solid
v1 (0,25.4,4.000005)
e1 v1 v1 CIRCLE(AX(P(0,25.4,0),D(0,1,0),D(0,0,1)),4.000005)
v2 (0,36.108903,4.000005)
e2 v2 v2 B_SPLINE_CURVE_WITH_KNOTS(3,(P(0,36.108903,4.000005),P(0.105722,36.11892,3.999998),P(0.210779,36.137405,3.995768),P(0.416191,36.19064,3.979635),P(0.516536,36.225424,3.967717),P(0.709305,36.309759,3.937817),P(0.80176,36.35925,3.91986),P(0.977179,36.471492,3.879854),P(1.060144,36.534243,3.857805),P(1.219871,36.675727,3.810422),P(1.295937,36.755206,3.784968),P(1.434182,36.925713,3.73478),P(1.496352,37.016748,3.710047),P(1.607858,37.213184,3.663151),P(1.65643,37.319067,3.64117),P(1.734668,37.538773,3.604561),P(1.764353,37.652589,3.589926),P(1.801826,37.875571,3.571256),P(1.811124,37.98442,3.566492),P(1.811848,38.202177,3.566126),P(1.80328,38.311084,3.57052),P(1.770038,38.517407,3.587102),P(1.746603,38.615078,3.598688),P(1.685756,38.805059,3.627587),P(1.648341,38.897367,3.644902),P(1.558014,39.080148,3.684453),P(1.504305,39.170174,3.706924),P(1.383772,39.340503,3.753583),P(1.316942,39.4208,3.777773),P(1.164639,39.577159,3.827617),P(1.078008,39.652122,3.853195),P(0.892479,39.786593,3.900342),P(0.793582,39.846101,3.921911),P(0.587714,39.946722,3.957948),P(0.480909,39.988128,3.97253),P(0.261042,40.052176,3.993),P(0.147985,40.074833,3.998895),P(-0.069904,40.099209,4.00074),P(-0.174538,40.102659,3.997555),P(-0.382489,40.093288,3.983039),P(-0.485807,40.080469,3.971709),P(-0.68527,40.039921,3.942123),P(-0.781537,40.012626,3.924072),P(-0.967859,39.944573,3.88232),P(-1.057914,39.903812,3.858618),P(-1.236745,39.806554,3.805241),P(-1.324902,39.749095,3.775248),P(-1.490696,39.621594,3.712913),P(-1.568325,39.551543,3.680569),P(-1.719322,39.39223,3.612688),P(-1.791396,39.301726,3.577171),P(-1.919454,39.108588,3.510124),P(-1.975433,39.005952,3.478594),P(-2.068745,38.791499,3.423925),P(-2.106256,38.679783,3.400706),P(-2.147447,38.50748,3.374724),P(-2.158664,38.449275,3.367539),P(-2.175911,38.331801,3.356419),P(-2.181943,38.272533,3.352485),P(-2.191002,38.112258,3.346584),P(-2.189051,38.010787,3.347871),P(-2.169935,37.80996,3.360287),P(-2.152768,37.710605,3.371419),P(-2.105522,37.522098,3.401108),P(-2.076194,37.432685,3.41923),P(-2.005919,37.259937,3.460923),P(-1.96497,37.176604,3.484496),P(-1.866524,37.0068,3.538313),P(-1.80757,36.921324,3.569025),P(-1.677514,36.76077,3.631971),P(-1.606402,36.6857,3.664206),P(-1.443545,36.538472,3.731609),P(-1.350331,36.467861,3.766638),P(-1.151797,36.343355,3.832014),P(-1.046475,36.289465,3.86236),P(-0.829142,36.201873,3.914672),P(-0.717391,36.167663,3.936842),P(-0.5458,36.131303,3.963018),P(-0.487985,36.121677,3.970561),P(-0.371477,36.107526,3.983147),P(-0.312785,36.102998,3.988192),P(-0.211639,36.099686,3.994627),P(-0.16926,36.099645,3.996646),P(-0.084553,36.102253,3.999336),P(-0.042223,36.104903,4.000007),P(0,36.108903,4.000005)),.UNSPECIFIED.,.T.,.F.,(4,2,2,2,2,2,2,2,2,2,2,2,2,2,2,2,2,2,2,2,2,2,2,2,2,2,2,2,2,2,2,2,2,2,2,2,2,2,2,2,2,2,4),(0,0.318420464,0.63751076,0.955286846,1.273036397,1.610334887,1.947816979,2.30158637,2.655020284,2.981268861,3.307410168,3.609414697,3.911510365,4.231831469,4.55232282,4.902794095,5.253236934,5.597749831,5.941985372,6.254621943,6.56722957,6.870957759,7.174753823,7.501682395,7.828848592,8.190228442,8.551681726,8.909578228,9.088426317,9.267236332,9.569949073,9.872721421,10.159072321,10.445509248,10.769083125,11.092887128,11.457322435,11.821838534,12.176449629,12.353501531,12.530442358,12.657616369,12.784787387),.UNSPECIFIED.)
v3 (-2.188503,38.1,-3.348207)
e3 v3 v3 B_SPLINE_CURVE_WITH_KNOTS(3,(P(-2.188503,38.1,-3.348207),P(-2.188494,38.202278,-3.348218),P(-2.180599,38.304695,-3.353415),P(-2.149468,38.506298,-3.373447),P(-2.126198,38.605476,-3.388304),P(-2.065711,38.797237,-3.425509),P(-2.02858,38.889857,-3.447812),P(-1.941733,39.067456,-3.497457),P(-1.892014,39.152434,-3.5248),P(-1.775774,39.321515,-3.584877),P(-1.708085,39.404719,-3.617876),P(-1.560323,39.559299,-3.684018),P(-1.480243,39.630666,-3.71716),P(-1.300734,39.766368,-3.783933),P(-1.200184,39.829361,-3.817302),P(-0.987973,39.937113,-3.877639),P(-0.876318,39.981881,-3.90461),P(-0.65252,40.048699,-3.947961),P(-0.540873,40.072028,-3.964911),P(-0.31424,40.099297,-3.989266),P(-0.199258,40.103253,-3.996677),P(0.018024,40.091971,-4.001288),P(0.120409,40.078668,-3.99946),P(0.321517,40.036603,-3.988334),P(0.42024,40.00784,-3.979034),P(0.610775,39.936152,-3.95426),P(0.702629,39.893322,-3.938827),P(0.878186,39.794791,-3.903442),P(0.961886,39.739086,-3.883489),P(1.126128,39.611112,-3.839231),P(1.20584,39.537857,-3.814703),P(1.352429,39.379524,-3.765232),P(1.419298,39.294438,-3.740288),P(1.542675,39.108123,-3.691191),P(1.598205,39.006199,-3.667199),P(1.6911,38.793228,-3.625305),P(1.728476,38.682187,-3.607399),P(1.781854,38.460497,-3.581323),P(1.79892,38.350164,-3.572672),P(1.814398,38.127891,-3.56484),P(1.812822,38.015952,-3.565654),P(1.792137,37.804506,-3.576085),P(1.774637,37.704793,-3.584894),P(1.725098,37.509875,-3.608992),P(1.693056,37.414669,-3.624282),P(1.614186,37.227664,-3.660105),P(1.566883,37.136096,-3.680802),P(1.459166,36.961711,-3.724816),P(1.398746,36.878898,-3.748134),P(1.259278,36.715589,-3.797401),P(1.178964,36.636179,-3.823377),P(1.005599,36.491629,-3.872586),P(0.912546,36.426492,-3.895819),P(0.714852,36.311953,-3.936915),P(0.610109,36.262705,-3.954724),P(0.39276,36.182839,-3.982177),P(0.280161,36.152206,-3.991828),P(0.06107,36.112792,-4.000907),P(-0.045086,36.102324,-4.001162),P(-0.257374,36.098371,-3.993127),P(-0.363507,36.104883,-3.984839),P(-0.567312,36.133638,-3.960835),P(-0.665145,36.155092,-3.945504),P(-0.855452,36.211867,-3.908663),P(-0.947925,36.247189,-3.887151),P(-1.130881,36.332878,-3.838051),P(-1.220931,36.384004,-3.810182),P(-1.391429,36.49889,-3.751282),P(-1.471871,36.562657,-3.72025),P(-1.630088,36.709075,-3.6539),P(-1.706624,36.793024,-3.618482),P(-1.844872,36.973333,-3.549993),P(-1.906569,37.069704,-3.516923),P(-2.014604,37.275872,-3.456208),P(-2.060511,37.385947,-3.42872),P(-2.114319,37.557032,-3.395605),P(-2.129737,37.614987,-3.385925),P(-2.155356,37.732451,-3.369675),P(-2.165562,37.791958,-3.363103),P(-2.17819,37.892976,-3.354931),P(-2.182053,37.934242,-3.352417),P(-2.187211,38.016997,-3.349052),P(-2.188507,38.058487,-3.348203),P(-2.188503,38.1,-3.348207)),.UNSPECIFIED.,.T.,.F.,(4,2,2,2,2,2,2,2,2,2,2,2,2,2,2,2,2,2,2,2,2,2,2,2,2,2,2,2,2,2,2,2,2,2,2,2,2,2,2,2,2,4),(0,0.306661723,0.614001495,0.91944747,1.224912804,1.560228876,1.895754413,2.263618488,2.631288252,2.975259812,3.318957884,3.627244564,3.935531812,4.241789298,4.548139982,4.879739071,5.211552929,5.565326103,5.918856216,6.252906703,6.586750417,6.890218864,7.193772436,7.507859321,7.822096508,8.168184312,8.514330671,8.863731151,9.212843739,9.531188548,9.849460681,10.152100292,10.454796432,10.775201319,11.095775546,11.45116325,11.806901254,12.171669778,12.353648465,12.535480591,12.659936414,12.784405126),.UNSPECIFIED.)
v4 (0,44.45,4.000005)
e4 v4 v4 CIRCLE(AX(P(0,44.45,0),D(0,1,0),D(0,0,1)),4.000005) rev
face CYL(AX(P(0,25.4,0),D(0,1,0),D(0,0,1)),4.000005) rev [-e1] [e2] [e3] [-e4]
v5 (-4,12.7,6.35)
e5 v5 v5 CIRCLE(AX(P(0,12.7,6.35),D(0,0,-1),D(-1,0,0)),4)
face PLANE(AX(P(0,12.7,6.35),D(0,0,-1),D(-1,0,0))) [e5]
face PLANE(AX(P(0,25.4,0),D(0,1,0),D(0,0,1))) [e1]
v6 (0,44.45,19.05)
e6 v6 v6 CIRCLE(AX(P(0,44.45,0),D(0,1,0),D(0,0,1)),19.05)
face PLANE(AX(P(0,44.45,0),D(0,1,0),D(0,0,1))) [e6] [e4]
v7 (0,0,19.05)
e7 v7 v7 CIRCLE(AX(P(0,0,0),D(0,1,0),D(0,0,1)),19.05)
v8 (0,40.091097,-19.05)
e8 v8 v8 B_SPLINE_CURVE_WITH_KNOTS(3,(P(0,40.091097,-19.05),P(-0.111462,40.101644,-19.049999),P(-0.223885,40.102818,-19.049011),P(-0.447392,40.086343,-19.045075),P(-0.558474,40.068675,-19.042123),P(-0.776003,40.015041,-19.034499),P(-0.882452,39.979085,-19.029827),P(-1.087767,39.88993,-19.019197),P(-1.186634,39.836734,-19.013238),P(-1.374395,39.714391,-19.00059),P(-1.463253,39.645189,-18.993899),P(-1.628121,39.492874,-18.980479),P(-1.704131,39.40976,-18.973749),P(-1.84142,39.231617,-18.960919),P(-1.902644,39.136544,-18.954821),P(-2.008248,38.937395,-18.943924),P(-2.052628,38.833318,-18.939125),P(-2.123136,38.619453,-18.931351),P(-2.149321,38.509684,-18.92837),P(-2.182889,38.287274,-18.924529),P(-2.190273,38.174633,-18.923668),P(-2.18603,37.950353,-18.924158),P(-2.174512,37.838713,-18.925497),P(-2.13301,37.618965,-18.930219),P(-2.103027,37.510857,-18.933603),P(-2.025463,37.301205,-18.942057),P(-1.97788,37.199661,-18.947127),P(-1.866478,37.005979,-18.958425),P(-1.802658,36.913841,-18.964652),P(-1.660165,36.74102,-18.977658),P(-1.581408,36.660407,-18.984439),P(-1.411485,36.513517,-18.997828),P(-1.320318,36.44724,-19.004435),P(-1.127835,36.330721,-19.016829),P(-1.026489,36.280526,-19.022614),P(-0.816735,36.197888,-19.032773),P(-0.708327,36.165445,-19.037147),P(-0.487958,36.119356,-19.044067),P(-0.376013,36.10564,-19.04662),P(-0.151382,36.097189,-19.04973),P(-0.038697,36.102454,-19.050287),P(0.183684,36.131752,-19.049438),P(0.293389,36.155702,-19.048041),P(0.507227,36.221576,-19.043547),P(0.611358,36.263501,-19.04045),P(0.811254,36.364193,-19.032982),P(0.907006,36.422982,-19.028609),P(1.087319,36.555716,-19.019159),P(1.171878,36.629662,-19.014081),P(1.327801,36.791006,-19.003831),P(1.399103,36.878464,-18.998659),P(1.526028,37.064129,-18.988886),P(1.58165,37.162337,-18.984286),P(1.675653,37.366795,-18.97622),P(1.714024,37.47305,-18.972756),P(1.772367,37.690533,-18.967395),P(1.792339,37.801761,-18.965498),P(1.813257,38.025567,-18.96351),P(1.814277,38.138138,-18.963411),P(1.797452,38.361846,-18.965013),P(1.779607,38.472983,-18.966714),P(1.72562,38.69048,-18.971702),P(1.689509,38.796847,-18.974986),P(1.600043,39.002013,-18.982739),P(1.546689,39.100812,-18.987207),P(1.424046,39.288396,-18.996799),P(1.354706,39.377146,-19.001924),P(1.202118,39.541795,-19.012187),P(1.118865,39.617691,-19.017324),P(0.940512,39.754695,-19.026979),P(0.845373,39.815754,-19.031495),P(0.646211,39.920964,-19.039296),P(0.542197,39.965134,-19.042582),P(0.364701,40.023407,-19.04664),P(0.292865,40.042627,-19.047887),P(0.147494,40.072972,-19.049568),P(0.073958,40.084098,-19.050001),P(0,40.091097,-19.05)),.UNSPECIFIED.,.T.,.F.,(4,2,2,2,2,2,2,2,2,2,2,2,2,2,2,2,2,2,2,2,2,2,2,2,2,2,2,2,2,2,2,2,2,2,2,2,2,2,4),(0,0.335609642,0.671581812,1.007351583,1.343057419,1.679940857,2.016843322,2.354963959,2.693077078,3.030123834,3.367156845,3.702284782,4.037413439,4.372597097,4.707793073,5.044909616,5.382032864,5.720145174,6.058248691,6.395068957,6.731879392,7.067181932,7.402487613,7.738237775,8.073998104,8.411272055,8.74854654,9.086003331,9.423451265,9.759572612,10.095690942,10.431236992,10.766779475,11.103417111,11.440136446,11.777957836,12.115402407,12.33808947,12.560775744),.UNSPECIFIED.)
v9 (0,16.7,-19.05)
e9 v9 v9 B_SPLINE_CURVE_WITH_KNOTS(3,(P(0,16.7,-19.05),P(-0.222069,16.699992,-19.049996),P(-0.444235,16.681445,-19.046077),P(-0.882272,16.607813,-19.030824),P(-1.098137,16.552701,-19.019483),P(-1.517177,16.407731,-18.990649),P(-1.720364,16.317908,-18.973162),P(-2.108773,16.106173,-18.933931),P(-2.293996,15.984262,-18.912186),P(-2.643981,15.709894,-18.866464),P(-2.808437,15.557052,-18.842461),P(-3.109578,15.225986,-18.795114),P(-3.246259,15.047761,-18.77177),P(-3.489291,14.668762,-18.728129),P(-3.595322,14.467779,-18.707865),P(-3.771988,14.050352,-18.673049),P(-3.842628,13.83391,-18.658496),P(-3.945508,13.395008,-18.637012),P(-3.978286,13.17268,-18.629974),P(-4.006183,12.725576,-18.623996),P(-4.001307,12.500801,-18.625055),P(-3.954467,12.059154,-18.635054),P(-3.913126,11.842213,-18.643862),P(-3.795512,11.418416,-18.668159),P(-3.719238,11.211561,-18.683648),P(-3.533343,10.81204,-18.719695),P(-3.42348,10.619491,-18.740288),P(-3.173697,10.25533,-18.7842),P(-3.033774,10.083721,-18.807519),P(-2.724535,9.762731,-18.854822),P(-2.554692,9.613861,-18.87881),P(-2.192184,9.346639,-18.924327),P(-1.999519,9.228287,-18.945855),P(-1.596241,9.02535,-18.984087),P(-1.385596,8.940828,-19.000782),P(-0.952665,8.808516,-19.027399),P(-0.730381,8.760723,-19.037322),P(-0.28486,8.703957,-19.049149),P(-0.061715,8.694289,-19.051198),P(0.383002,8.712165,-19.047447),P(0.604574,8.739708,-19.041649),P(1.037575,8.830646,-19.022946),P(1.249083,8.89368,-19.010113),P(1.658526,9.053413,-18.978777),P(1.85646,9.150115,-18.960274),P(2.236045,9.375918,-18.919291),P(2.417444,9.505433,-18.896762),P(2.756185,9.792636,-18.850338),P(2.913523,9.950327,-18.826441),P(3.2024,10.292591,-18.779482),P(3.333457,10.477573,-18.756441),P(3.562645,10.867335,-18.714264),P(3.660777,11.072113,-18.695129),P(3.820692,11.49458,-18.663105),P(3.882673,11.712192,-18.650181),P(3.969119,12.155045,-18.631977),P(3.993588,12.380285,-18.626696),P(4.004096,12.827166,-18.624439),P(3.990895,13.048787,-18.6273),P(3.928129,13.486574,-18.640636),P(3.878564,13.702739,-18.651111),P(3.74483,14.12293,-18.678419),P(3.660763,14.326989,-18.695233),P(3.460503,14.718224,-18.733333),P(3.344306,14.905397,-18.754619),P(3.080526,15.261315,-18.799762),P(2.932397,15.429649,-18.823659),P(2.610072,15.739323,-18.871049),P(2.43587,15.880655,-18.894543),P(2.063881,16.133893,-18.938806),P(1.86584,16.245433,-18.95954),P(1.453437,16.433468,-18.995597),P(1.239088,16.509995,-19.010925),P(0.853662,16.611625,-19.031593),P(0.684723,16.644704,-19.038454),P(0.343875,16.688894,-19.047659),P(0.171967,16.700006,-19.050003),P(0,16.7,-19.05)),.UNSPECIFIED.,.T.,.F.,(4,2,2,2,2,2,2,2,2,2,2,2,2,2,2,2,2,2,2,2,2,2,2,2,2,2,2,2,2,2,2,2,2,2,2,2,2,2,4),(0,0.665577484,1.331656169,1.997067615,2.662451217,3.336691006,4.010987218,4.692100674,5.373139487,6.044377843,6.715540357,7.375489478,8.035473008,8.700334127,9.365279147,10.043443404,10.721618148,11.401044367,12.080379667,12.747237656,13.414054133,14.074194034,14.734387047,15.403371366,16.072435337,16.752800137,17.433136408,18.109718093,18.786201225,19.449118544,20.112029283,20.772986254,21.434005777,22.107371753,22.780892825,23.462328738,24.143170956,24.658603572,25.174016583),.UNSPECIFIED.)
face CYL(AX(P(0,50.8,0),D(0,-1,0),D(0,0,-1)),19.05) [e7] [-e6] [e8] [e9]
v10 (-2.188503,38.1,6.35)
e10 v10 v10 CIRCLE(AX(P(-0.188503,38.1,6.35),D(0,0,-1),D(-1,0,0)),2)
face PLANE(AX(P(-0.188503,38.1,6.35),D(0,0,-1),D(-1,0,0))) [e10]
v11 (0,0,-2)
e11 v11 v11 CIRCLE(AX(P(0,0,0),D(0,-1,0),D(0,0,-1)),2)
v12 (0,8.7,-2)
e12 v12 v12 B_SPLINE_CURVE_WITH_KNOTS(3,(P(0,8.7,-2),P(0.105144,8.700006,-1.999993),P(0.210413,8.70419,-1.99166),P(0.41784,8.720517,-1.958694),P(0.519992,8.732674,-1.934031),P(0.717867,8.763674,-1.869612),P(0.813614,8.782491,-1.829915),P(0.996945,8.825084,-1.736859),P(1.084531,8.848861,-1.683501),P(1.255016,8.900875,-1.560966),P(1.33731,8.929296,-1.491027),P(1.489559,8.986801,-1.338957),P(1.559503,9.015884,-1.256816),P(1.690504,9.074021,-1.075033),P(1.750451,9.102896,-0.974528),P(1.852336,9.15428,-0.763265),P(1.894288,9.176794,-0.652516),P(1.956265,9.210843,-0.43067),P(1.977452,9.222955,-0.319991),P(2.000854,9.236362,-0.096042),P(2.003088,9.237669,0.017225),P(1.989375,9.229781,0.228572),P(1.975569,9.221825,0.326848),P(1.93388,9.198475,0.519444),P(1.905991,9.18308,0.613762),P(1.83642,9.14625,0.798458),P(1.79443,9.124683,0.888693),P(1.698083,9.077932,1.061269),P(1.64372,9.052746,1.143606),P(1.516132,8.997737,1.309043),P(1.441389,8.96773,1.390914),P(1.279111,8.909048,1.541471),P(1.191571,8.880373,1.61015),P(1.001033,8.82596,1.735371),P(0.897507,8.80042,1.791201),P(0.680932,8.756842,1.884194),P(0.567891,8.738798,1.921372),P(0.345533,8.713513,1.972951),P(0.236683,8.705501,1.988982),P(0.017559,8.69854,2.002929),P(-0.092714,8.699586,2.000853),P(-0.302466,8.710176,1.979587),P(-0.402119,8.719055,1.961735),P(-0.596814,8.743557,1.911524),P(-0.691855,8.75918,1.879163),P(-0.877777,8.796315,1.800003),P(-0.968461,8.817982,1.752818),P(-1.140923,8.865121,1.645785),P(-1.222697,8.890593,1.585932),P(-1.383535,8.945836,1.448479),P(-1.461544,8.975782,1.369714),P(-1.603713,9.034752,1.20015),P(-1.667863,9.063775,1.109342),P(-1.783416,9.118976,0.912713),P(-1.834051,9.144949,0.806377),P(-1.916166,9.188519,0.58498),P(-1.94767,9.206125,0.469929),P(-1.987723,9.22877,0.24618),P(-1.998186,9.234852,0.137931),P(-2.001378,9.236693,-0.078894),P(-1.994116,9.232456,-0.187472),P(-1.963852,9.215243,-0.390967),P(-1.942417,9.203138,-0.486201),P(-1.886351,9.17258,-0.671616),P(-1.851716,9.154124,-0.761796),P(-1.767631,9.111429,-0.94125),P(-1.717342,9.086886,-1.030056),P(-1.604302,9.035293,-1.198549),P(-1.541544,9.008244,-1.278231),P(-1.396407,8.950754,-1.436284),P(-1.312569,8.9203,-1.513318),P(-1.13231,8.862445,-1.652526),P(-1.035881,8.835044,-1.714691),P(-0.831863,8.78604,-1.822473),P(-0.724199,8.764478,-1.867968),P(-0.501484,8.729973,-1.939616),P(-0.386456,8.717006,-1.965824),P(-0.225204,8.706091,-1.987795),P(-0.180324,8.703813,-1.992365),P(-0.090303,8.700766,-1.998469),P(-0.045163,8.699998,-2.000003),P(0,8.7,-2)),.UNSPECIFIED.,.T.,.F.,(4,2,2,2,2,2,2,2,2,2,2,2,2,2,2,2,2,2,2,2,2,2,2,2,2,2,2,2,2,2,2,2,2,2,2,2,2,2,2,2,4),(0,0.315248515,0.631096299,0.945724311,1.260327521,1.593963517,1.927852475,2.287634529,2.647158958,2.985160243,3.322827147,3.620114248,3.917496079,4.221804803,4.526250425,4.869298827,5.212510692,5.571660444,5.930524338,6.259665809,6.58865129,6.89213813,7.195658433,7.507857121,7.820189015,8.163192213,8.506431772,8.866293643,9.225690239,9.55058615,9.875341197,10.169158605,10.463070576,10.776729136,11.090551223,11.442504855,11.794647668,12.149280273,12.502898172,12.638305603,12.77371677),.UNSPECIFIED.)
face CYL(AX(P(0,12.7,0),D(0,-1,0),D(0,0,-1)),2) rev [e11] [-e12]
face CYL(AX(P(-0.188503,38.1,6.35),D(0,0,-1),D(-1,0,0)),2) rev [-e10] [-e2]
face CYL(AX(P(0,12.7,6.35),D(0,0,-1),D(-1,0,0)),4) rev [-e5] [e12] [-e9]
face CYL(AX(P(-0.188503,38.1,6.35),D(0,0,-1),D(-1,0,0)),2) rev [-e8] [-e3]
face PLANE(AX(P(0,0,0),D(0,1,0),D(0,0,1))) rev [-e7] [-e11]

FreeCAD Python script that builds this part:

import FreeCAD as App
import Part
import Sketcher
Q = App.Units.Quantity

doc = App.newDocument("Part")
params = doc.addObject("Spreadsheet::Sheet", "Params")
for row, (alias, value) in enumerate([
    ("sketch1_diameter", "1.5 in"),
    ("pad1_length", "2 in"),
    ("pocket1_length", "1 in"),
    ("pocket2_length", "1 in"),
    ("pocket3_length", "0.5 in"),
    ("sketch5_diameter", "1.5 in"),
    ("pocket4_length", "0.25 in"),
], start=1):
    params.set(f"A{row}", alias)
    params.set(f"B{row}", "=" + value)
    params.setAlias(f"B{row}", alias)

body = doc.addObject("PartDesign::Body", "Body")

sketch1 = doc.addObject("Sketcher::SketchObject", "Sketch")
body.addObject(sketch1)
sketch1.AttachmentSupport = (doc.XZ_Plane, [""])
sketch1.MapMode = "FlatFace"
sketch1.addGeometry(Part.Circle(App.Vector(0, 0, 0), App.Vector(0, 0, 1), 19), False)
sketch1.addConstraint(Sketcher.Constraint("Coincident", 0, 3, -1, 1))
sketch1.addConstraint(Sketcher.Constraint("Diameter", 0, Q("1.5 in")))
sketch1.setExpression("Constraints[1]", "Params.sketch1_diameter")
pad1 = doc.addObject("PartDesign::Pad", "Pad")
body.addObject(pad1)
pad1.Profile = sketch1
pad1.setExpression("Length", "Params.pad1_length")
pad1.Reversed = True

sketch2 = doc.addObject("Sketcher::SketchObject", "Sketch001")
body.addObject(sketch2)
sketch2.AttachmentSupport = (doc.XZ_Plane, [""])
sketch2.MapMode = "FlatFace"
sketch2.AttachmentOffset = App.Placement(App.Vector(0, 0, -2 * 25.4), App.Rotation())
sketch2.addGeometry(Part.Circle(App.Vector(0, 0, 0), App.Vector(0, 0, 1), 4), False)
sketch2.addConstraint(Sketcher.Constraint("Coincident", 0, 3, -1, 1))
sketch2.addConstraint(Sketcher.Constraint("Diameter", 0, 8.000009))
pocket1 = doc.addObject("PartDesign::Pocket", "Pocket")
body.addObject(pocket1)
pocket1.Profile = sketch2
pocket1.setExpression("Length", "Params.pocket1_length")
pocket1.Reversed = True

sketch3 = doc.addObject("Sketcher::SketchObject", "Sketch002")
body.addObject(sketch3)
sketch3.AttachmentSupport = (doc.XY_Plane, [""])
sketch3.MapMode = "FlatFace"
sketch3.AttachmentOffset = App.Placement(App.Vector(0, 0, -0.75 * 25.4), App.Rotation())
sketch3.addGeometry(Part.Circle(App.Vector(0, 12.7, 0), App.Vector(0, 0, 1), 4), False)
sketch3.addGeometry(Part.Circle(App.Vector(-0.2, 38.1, 0), App.Vector(0, 0, 1), 2), False)
sketch3.addConstraint(Sketcher.Constraint("PointOnObject", 0, 3, -2))
sketch3.addConstraint(Sketcher.Constraint("DistanceY", 0, 3, 1, 3, Q("1 in")))
sketch3.addConstraint(Sketcher.Constraint("DistanceY", -1, 1, 0, 3, Q("0.5 in")))
sketch3.addConstraint(Sketcher.Constraint("Diameter", 0, 8.0))
sketch3.addConstraint(Sketcher.Constraint("Diameter", 1, 4.0))
sketch3.addConstraint(Sketcher.Constraint("DistanceX", 1, 3, -1, 1, 0.188503))
pocket2 = doc.addObject("PartDesign::Pocket", "Pocket001")
body.addObject(pocket2)
pocket2.Profile = sketch3
pocket2.setExpression("Length", "Params.pocket2_length")
pocket2.Reversed = True

sketch4 = doc.addObject("Sketcher::SketchObject", "Sketch003")
body.addObject(sketch4)
sketch4.AttachmentSupport = (doc.XZ_Plane, [""])
sketch4.MapMode = "FlatFace"
sketch4.addGeometry(Part.Circle(App.Vector(0, 0, 0), App.Vector(0, 0, 1), 2), False)
sketch4.addConstraint(Sketcher.Constraint("Coincident", 0, 3, -1, 1))
sketch4.addConstraint(Sketcher.Constraint("Diameter", 0, 4.0))
pocket3 = doc.addObject("PartDesign::Pocket", "Pocket002")
body.addObject(pocket3)
pocket3.Profile = sketch4
pocket3.setExpression("Length", "Params.pocket3_length")

sketch5 = doc.addObject("Sketcher::SketchObject", "Sketch004")
body.addObject(sketch5)
sketch5.AttachmentSupport = (doc.XZ_Plane, [""])
sketch5.MapMode = "FlatFace"
sketch5.AttachmentOffset = App.Placement(App.Vector(0, 0, -2 * 25.4), App.Rotation())
sketch5.addGeometry(Part.Circle(App.Vector(0, 0, 0), App.Vector(0, 0, 1), 19), False)
sketch5.addConstraint(Sketcher.Constraint("Coincident", 0, 3, -1, 1))
sketch5.addConstraint(Sketcher.Constraint("Diameter", 0, Q("1.5 in")))
sketch5.setExpression("Constraints[1]", "Params.sketch5_diameter")
pocket4 = doc.addObject("PartDesign::Pocket", "Pocket003")
body.addObject(pocket4)
pocket4.Profile = sketch5
pocket4.setExpression("Length", "Params.pocket4_length")
pocket4.Reversed = True

doc.recompute()
